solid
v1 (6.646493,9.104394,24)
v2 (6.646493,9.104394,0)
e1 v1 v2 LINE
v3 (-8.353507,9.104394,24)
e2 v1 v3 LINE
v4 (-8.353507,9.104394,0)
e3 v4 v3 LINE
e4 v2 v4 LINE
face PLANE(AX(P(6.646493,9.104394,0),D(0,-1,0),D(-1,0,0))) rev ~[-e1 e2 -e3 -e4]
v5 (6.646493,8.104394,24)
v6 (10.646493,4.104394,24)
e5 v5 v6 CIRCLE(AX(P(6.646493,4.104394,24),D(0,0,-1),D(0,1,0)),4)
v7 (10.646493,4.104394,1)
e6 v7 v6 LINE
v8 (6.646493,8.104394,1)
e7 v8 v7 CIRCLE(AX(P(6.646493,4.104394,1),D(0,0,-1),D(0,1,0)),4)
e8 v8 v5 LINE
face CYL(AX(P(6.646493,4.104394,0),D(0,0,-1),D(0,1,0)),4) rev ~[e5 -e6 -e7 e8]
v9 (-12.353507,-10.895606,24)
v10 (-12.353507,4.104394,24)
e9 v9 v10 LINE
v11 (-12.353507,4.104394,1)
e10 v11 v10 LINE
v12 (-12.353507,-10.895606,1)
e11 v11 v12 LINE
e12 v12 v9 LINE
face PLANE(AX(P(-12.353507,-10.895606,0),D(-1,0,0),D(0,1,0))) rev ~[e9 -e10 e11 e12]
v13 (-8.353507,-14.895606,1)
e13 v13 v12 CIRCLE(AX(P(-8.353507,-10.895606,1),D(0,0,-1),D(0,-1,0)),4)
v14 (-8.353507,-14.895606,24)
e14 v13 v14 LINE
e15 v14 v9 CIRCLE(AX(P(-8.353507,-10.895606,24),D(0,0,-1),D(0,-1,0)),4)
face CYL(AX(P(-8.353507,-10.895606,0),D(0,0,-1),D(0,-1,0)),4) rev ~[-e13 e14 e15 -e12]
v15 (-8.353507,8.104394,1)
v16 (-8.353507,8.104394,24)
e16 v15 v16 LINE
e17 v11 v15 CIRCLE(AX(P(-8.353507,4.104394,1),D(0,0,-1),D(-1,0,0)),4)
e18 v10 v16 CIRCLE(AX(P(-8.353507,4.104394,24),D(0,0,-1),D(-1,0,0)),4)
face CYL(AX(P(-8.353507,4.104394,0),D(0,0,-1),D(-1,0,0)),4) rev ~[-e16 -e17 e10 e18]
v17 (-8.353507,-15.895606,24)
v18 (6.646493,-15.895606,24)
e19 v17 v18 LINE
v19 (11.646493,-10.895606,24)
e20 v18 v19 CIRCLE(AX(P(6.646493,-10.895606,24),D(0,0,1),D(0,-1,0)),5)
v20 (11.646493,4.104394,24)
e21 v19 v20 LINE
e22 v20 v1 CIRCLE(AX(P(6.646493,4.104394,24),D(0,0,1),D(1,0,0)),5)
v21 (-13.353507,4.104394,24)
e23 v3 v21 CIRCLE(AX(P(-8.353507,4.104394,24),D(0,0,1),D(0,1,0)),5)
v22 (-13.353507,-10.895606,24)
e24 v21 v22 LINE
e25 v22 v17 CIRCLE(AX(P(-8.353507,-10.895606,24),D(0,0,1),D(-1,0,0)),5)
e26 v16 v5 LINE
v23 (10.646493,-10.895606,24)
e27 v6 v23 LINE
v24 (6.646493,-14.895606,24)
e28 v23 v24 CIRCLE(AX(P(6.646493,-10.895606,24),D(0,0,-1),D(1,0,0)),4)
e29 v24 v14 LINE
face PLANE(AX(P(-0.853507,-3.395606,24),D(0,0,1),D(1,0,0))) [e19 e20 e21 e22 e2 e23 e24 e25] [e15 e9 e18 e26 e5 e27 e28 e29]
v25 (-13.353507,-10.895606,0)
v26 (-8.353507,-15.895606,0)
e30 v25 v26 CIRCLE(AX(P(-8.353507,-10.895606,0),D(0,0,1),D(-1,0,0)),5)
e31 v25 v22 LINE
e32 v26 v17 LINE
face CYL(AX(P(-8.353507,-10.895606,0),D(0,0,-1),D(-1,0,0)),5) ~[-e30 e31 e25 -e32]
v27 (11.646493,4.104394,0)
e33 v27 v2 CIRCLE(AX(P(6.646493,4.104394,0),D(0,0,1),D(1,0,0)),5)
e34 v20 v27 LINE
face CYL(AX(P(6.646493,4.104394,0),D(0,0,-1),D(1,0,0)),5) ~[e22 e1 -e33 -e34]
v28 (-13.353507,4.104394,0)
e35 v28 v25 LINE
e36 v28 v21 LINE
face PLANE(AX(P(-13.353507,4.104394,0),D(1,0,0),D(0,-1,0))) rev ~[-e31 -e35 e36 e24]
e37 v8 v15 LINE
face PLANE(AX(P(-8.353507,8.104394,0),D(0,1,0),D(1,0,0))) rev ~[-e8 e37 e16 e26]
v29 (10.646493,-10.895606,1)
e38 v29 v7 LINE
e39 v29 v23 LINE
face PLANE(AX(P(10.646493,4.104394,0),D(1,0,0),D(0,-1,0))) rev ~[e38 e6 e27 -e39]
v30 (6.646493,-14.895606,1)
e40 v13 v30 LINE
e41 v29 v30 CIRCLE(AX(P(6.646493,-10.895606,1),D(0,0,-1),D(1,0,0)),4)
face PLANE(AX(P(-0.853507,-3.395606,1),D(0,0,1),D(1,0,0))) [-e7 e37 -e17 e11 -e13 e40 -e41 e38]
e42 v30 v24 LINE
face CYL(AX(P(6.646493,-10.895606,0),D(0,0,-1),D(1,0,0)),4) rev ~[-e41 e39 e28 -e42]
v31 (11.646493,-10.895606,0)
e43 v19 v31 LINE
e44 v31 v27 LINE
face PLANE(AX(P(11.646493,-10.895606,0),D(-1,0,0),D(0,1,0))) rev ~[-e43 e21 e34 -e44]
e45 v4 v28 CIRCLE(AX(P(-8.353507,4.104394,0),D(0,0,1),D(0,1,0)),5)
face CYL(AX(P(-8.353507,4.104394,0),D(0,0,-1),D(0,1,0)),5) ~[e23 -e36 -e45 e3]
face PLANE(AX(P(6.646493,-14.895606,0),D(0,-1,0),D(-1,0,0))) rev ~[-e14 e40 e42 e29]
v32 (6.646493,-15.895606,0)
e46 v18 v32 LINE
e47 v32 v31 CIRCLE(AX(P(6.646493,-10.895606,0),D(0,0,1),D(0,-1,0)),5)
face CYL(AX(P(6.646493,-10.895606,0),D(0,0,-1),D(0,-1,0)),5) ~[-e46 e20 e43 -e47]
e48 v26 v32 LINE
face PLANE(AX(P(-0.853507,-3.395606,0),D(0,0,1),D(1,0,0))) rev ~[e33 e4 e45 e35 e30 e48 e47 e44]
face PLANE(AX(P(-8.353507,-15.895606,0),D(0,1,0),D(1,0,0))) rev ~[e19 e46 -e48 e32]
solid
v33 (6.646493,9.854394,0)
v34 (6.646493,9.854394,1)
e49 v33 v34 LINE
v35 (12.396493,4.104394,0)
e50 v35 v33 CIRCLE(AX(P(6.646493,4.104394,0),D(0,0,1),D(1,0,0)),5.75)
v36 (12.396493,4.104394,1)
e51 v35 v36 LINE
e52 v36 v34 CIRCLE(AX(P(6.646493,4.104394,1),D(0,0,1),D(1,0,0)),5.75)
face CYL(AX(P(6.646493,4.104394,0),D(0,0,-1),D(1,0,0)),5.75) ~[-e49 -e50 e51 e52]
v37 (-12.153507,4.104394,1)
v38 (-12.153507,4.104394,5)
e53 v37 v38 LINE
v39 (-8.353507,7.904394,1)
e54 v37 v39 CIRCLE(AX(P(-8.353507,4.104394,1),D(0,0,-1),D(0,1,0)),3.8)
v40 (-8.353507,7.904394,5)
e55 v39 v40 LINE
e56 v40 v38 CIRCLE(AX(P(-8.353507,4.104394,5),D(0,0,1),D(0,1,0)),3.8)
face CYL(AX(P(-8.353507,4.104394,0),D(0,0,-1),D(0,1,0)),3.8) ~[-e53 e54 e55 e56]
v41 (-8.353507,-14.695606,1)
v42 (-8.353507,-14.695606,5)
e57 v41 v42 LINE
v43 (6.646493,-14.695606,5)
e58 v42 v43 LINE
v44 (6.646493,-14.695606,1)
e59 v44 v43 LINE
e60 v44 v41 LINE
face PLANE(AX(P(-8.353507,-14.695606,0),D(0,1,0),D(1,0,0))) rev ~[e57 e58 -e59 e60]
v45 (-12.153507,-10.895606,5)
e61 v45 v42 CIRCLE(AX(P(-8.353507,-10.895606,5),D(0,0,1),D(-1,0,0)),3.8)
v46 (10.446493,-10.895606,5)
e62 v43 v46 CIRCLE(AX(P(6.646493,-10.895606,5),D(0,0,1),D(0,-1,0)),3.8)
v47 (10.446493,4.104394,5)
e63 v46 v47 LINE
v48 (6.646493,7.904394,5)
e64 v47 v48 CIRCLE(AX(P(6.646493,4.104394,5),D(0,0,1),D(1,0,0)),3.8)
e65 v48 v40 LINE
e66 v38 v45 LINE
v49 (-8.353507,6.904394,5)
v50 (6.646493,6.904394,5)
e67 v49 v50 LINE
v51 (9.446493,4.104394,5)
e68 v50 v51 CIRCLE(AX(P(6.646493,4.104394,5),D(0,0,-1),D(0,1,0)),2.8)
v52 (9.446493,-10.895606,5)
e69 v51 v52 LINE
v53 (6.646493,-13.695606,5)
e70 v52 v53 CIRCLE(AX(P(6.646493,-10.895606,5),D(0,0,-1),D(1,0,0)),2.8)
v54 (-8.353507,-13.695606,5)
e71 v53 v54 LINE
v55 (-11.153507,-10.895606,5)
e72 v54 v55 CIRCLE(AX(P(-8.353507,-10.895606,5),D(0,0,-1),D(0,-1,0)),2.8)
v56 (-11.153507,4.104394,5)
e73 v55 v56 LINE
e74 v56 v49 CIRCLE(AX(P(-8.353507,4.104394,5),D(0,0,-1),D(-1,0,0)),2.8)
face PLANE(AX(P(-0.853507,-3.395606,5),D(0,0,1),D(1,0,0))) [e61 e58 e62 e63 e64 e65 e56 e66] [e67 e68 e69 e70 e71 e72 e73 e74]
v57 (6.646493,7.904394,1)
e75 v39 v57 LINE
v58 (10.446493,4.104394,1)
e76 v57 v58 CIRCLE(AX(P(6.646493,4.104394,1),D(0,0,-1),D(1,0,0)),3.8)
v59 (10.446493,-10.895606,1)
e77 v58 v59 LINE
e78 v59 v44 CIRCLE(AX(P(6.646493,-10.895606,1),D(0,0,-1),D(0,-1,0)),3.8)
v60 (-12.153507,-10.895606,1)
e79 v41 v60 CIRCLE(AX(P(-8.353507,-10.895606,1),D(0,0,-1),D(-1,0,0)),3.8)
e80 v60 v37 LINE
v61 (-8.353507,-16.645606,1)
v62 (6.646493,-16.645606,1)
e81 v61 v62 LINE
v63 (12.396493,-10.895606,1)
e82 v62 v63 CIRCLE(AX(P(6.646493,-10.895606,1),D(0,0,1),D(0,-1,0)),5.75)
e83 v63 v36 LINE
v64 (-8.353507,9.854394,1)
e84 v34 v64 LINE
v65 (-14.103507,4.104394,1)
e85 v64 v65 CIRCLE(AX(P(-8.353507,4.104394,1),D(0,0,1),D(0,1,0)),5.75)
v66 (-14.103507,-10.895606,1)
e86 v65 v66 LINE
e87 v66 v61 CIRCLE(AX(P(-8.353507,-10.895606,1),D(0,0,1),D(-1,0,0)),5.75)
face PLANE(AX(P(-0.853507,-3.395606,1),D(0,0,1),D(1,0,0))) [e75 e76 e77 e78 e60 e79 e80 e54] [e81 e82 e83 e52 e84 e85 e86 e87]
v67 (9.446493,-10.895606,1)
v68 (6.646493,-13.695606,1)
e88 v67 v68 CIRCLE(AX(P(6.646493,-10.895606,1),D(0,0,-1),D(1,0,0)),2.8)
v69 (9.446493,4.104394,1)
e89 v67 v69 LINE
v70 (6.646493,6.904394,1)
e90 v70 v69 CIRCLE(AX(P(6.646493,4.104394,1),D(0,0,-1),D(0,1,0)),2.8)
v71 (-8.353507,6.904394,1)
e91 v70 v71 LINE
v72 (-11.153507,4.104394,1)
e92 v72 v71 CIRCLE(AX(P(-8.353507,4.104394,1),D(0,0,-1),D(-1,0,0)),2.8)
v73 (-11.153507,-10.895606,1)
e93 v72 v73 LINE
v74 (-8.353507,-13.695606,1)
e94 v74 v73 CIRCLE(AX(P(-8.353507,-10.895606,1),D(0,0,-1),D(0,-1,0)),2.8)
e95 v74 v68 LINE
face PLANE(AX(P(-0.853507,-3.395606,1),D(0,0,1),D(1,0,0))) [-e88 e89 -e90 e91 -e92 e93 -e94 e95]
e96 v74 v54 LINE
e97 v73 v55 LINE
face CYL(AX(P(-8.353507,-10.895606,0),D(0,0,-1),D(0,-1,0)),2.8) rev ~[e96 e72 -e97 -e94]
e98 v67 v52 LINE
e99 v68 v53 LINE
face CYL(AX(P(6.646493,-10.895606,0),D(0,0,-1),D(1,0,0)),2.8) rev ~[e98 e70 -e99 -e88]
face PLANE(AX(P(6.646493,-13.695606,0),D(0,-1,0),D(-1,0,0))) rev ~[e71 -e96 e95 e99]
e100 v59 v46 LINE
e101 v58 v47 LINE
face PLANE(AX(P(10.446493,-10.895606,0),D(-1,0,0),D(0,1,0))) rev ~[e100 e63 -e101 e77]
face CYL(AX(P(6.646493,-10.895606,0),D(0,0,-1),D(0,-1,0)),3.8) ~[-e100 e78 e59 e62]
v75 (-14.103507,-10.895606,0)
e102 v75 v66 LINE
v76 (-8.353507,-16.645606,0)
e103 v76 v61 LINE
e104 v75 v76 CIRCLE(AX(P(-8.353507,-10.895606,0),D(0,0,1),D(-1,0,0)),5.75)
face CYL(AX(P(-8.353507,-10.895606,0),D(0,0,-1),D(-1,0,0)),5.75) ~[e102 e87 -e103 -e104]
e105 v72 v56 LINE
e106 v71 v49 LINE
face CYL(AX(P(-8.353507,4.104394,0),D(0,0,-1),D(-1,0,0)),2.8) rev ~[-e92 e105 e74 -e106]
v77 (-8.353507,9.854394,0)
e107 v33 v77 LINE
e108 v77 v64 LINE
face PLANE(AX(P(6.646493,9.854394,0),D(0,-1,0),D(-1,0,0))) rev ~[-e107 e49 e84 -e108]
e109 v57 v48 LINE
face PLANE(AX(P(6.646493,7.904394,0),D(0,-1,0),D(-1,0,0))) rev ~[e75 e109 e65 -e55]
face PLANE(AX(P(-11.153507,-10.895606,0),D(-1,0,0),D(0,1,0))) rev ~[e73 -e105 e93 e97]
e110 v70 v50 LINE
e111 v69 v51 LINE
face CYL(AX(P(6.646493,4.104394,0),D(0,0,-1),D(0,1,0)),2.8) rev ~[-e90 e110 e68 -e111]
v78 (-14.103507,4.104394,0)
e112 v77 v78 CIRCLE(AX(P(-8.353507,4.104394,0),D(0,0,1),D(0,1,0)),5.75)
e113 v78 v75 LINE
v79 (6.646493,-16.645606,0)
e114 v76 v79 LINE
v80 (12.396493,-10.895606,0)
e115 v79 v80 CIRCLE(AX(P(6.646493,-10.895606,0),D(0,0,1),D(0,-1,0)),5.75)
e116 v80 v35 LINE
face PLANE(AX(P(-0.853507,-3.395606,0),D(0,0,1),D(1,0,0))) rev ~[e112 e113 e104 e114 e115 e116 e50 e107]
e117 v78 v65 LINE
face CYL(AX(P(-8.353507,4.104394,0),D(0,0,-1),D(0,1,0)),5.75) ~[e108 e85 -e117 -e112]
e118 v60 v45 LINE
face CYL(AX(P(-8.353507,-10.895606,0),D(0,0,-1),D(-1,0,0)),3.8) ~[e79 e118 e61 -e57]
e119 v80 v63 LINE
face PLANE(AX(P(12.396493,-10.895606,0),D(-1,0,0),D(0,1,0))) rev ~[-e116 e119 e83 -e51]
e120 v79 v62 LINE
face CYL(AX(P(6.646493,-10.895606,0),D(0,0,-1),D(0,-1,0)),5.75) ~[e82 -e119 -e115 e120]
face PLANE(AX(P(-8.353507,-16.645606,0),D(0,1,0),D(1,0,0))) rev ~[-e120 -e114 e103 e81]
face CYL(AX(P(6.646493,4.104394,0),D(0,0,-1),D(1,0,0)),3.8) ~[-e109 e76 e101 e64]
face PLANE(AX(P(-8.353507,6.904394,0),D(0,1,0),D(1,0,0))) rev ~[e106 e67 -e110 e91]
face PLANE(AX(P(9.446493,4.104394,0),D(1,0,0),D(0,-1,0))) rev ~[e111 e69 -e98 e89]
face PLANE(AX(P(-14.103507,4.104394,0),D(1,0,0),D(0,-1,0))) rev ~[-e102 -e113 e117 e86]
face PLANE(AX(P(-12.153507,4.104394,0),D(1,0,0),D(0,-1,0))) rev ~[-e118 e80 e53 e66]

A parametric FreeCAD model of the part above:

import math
import FreeCAD as App
import Part
import Sketcher
from FreeCAD import Vector

doc = App.newDocument("Part")
params = doc.addObject("Spreadsheet::Sheet", "Params")
for row, (alias, value) in enumerate([
    ("sketch1_radius", "5 mm"),
    ("sketch1_width", "15 mm"),
    ("pad1_length", "1 mm"),
    ("sketch2_radius", "5 mm"),
    ("sketch2_radius2", "4 mm"),
    ("sketch2_width", "15 mm"),
    ("pad2_length", "24 mm"),
    ("sketch3_width", "15 mm"),
    ("sketch3_radius", "5.75 mm"),
    ("pad3_length", "1 mm"),
    ("sketch4_radius", "3.8 mm"),
    ("sketch4_radius2", "2.8 mm"),
    ("sketch4_width", "15 mm"),
    ("pad4_length", "5 mm"),
], start=1):
    params.set(f"A{row}", alias)
    params.set(f"B{row}", "=" + value)
    params.setAlias(f"B{row}", alias)

body = doc.addObject("PartDesign::Body", "Body")

sketch1 = doc.addObject("Sketcher::SketchObject", "Sketch")
body.addObject(sketch1)
sketch1.AttachmentSupport = (doc.XY_Plane, [""])
sketch1.MapMode = "FlatFace"
sketch1.addGeometry([
    Part.LineSegment(Vector(7, 9, 0), Vector(-8, 9, 0)),
    Part.ArcOfCircle(Part.Circle(Vector(-8, 4, 0), Vector(0, 0, 1), 5), math.radians(90), math.radians(180)),
    Part.LineSegment(Vector(-13, 4, 0), Vector(-13, -11, 0)),
    Part.ArcOfCircle(Part.Circle(Vector(-8, -11, 0), Vector(0, 0, 1), 5), math.radians(180), math.radians(270)),
    Part.LineSegment(Vector(-8, -16, 0), Vector(7, -16, 0)),
    Part.ArcOfCircle(Part.Circle(Vector(7, -11, 0), Vector(0, 0, 1), 5), math.radians(-90), math.radians(0)),
    Part.LineSegment(Vector(12, -11, 0), Vector(12, 4, 0)),
    Part.ArcOfCircle(Part.Circle(Vector(7, 4, 0), Vector(0, 0, 1), 5), math.radians(0), math.radians(90)),
], False)
sketch1.addConstraint([
    Sketcher.Constraint("Tangent", 0, 2, 1, 1),
    Sketcher.Constraint("Tangent", 1, 2, 2, 1),
    Sketcher.Constraint("Tangent", 2, 2, 3, 1),
    Sketcher.Constraint("Tangent", 3, 2, 4, 1),
    Sketcher.Constraint("Tangent", 4, 2, 5, 1),
    Sketcher.Constraint("Tangent", 5, 2, 6, 1),
    Sketcher.Constraint("Tangent", 6, 2, 7, 1),
    Sketcher.Constraint("Tangent", 7, 2, 0, 1),
    Sketcher.Constraint("Horizontal", 0),
    Sketcher.Constraint("Vertical", 2),
    Sketcher.Constraint("Horizontal", 4),
    Sketcher.Constraint("Vertical", 6),
    Sketcher.Constraint("Equal", 1, 3),
    Sketcher.Constraint("Equal", 3, 5),
    Sketcher.Constraint("Equal", 5, 7),
    Sketcher.Constraint("Equal", 4, 2),
    Sketcher.Constraint("Radius", 1, 5.0),
    Sketcher.Constraint("DistanceX", 0, 2, 0, 1, 15.0),
    Sketcher.Constraint("DistanceX", 1, 3, -1, 1, 8.353507),
    Sketcher.Constraint("DistanceY", -1, 1, 1, 3, 4.104394),
])
sketch1.setExpression("Constraints[16]", "Params.sketch1_radius")
sketch1.setExpression("Constraints[17]", "Params.sketch1_width")
pad1 = doc.addObject("PartDesign::Pad", "Pad")
body.addObject(pad1)
pad1.Profile = sketch1
pad1.setExpression("Length", "Params.pad1_length")

sketch2 = doc.addObject("Sketcher::SketchObject", "Sketch001")
body.addObject(sketch2)
sketch2.AttachmentSupport = (doc.XY_Plane, [""])
sketch2.MapMode = "FlatFace"
sketch2.addGeometry([
    Part.LineSegment(Vector(6.6, 9.1, 0), Vector(-8.4, 9.1, 0)),
    Part.ArcOfCircle(Part.Circle(Vector(-8.4, 4.1, 0), Vector(0, 0, 1), 5), math.radians(90), math.radians(180)),
    Part.LineSegment(Vector(-13.4, 4.1, 0), Vector(-13.4, -10.9, 0)),
    Part.ArcOfCircle(Part.Circle(Vector(-8.4, -10.9, 0), Vector(0, 0, 1), 5), math.radians(180), math.radians(270)),
    Part.LineSegment(Vector(-8.4, -15.9, 0), Vector(6.6, -15.9, 0)),
    Part.ArcOfCircle(Part.Circle(Vector(6.6, -10.9, 0), Vector(0, 0, 1), 5), math.radians(-90), math.radians(0)),
    Part.LineSegment(Vector(11.6, -10.9, 0), Vector(11.6, 4.1, 0)),
    Part.ArcOfCircle(Part.Circle(Vector(6.6, 4.1, 0), Vector(0, 0, 1), 5), math.radians(0), math.radians(90)),
    Part.LineSegment(Vector(-12.4, -10.9, 0), Vector(-12.4, 4.1, 0)),
    Part.ArcOfCircle(Part.Circle(Vector(-8.4, 4.1, 0), Vector(0, 0, 1), 4), math.radians(90), math.radians(180)),
    Part.LineSegment(Vector(-8.4, 8.1, 0), Vector(6.6, 8.1, 0)),
    Part.ArcOfCircle(Part.Circle(Vector(6.6, 4.1, 0), Vector(0, 0, 1), 4), math.radians(0), math.radians(90)),
    Part.LineSegment(Vector(10.6, 4.1, 0), Vector(10.6, -10.9, 0)),
    Part.ArcOfCircle(Part.Circle(Vector(6.6, -10.9, 0), Vector(0, 0, 1), 4), math.radians(-90), math.radians(0)),
    Part.LineSegment(Vector(6.6, -14.9, 0), Vector(-8.4, -14.9, 0)),
    Part.ArcOfCircle(Part.Circle(Vector(-8.4, -10.9, 0), Vector(0, 0, 1), 4), math.radians(180), math.radians(270)),
], False)
sketch2.addConstraint([
    Sketcher.Constraint("Tangent", 0, 2, 1, 1),
    Sketcher.Constraint("Tangent", 1, 2, 2, 1),
    Sketcher.Constraint("Tangent", 2, 2, 3, 1),
    Sketcher.Constraint("Tangent", 3, 2, 4, 1),
    Sketcher.Constraint("Tangent", 4, 2, 5, 1),
    Sketcher.Constraint("Tangent", 5, 2, 6, 1),
    Sketcher.Constraint("Tangent", 6, 2, 7, 1),
    Sketcher.Constraint("Tangent", 7, 2, 0, 1),
    Sketcher.Constraint("Tangent", 8, 2, 9, 2),
    Sketcher.Constraint("Tangent", 9, 1, 10, 1),
    Sketcher.Constraint("Tangent", 10, 2, 11, 2),
    Sketcher.Constraint("Tangent", 11, 1, 12, 1),
    Sketcher.Constraint("Tangent", 12, 2, 13, 2),
    Sketcher.Constraint("Tangent", 13, 1, 14, 1),
    Sketcher.Constraint("Tangent", 14, 2, 15, 2),
    Sketcher.Constraint("Tangent", 15, 1, 8, 1),
    Sketcher.Constraint("Horizontal", 0),
    Sketcher.Constraint("Vertical", 2),
    Sketcher.Constraint("Horizontal", 4),
    Sketcher.Constraint("Vertical", 6),
    Sketcher.Constraint("Vertical", 8),
    Sketcher.Constraint("Horizontal", 10),
    Sketcher.Constraint("Vertical", 12),
    Sketcher.Constraint("Horizontal", 14),
    Sketcher.Constraint("Coincident", 9, 3, 1, 3),
    Sketcher.Constraint("Coincident", 11, 3, 7, 3),
    Sketcher.Constraint("Coincident", 13, 3, 5, 3),
    Sketcher.Constraint("Equal", 1, 3),
    Sketcher.Constraint("Equal", 3, 5),
    Sketcher.Constraint("Equal", 5, 7),
    Sketcher.Constraint("Equal", 13, 15),
    Sketcher.Constraint("Equal", 14, 2),
    Sketcher.Constraint("Radius", 1, 5.0),
    Sketcher.Constraint("Radius", 9, 4.0),
    Sketcher.Constraint("DistanceX", 0, 2, 0, 1, 15.0),
    Sketcher.Constraint("DistanceX", 1, 3, -1, 1, 8.353507),
    Sketcher.Constraint("DistanceY", -1, 1, 1, 3, 4.104394),
])
sketch2.setExpression("Constraints[32]", "Params.sketch2_radius")
sketch2.setExpression("Constraints[33]", "Params.sketch2_radius2")
sketch2.setExpression("Constraints[34]", "Params.sketch2_width")
pad2 = doc.addObject("PartDesign::Pad", "Pad001")
body.addObject(pad2)
pad2.Profile = sketch2
pad2.setExpression("Length", "Params.pad2_length")
body2 = doc.addObject("PartDesign::Body", "Body001")

sketch3 = doc.addObject("Sketcher::SketchObject", "Sketch002")
body2.addObject(sketch3)
sketch3.AttachmentSupport = (doc.getObject("XY_Plane001"), [""])
sketch3.MapMode = "FlatFace"
sketch3.addGeometry([
    Part.LineSegment(Vector(7, 10, 0), Vector(-8, 10, 0)),
    Part.ArcOfCircle(Part.Circle(Vector(-8, 4, 0), Vector(0, 0, 1), 6), math.radians(90), math.radians(180)),
    Part.LineSegment(Vector(-14, 4, 0), Vector(-14, -11, 0)),
    Part.ArcOfCircle(Part.Circle(Vector(-8, -11, 0), Vector(0, 0, 1), 6), math.radians(180), math.radians(270)),
    Part.LineSegment(Vector(-8, -17, 0), Vector(7, -17, 0)),
    Part.ArcOfCircle(Part.Circle(Vector(7, -11, 0), Vector(0, 0, 1), 6), math.radians(-90), math.radians(0)),
    Part.LineSegment(Vector(12, -11, 0), Vector(12, 4, 0)),
    Part.ArcOfCircle(Part.Circle(Vector(7, 4, 0), Vector(0, 0, 1), 6), math.radians(0), math.radians(90)),
], False)
sketch3.addConstraint([
    Sketcher.Constraint("Tangent", 0, 2, 1, 1),
    Sketcher.Constraint("Tangent", 1, 2, 2, 1),
    Sketcher.Constraint("Tangent", 2, 2, 3, 1),
    Sketcher.Constraint("Tangent", 3, 2, 4, 1),
    Sketcher.Constraint("Tangent", 4, 2, 5, 1),
    Sketcher.Constraint("Tangent", 5, 2, 6, 1),
    Sketcher.Constraint("Tangent", 6, 2, 7, 1),
    Sketcher.Constraint("Tangent", 7, 2, 0, 1),
    Sketcher.Constraint("Horizontal", 0),
    Sketcher.Constraint("Vertical", 2),
    Sketcher.Constraint("Horizontal", 4),
    Sketcher.Constraint("Vertical", 6),
    Sketcher.Constraint("Equal", 1, 3),
    Sketcher.Constraint("Equal", 3, 5),
    Sketcher.Constraint("Equal", 5, 7),
    Sketcher.Constraint("Equal", 4, 2),
    Sketcher.Constraint("DistanceX", 0, 2, 0, 1, 15.0),
    Sketcher.Constraint("Radius", 1, 5.75),
    Sketcher.Constraint("DistanceX", 1, 3, -1, 1, 8.353507),
    Sketcher.Constraint("DistanceY", -1, 1, 1, 3, 4.104394),
])
sketch3.setExpression("Constraints[16]", "Params.sketch3_width")
sketch3.setExpression("Constraints[17]", "Params.sketch3_radius")
pad3 = doc.addObject("PartDesign::Pad", "Pad002")
body2.addObject(pad3)
pad3.Profile = sketch3
pad3.setExpression("Length", "Params.pad3_length")

sketch4 = doc.addObject("Sketcher::SketchObject", "Sketch003")
body2.addObject(sketch4)
sketch4.AttachmentSupport = (doc.getObject("XY_Plane001"), [""])
sketch4.MapMode = "FlatFace"
sketch4.addGeometry([
    Part.LineSegment(Vector(6.6, 7.9, 0), Vector(-8.4, 7.9, 0)),
    Part.ArcOfCircle(Part.Circle(Vector(-8.4, 4.1, 0), Vector(0, 0, 1), 3.8), math.radians(90), math.radians(180)),
    Part.LineSegment(Vector(-12.2, 4.1, 0), Vector(-12.2, -10.9, 0)),
    Part.ArcOfCircle(Part.Circle(Vector(-8.4, -10.9, 0), Vector(0, 0, 1), 3.8), math.radians(180), math.radians(270)),
    Part.LineSegment(Vector(-8.4, -14.7, 0), Vector(6.6, -14.7, 0)),
    Part.ArcOfCircle(Part.Circle(Vector(6.6, -10.9, 0), Vector(0, 0, 1), 3.8), math.radians(-90), math.radians(0)),
    Part.LineSegment(Vector(10.4, -10.9, 0), Vector(10.4, 4.1, 0)),
    Part.ArcOfCircle(Part.Circle(Vector(6.6, 4.1, 0), Vector(0, 0, 1), 3.8), math.radians(0), math.radians(90)),
    Part.LineSegment(Vector(-11.2, -10.9, 0), Vector(-11.2, 4.1, 0)),
    Part.ArcOfCircle(Part.Circle(Vector(-8.4, 4.1, 0), Vector(0, 0, 1), 2.8), math.radians(90), math.radians(180)),
    Part.LineSegment(Vector(-8.4, 6.9, 0), Vector(6.6, 6.9, 0)),
    Part.ArcOfCircle(Part.Circle(Vector(6.6, 4.1, 0), Vector(0, 0, 1), 2.8), math.radians(0), math.radians(90)),
    Part.LineSegment(Vector(9.4, 4.1, 0), Vector(9.4, -10.9, 0)),
    Part.ArcOfCircle(Part.Circle(Vector(6.6, -10.9, 0), Vector(0, 0, 1), 2.8), math.radians(-90), math.radians(0)),
    Part.LineSegment(Vector(6.6, -13.7, 0), Vector(-8.4, -13.7, 0)),
    Part.ArcOfCircle(Part.Circle(Vector(-8.4, -10.9, 0), Vector(0, 0, 1), 2.8), math.radians(180), math.radians(270)),
], False)
sketch4.addConstraint([
    Sketcher.Constraint("Tangent", 0, 2, 1, 1),
    Sketcher.Constraint("Tangent", 1, 2, 2, 1),
    Sketcher.Constraint("Tangent", 2, 2, 3, 1),
    Sketcher.Constraint("Tangent", 3, 2, 4, 1),
    Sketcher.Constraint("Tangent", 4, 2, 5, 1),
    Sketcher.Constraint("Tangent", 5, 2, 6, 1),
    Sketcher.Constraint("Tangent", 6, 2, 7, 1),
    Sketcher.Constraint("Tangent", 7, 2, 0, 1),
    Sketcher.Constraint("Tangent", 8, 2, 9, 2),
    Sketcher.Constraint("Tangent", 9, 1, 10, 1),
    Sketcher.Constraint("Tangent", 10, 2, 11, 2),
    Sketcher.Constraint("Tangent", 11, 1, 12, 1),
    Sketcher.Constraint("Tangent", 12, 2, 13, 2),
    Sketcher.Constraint("Tangent", 13, 1, 14, 1),
    Sketcher.Constraint("Tangent", 14, 2, 15, 2),
    Sketcher.Constraint("Tangent", 15, 1, 8, 1),
    Sketcher.Constraint("Horizontal", 0),
    Sketcher.Constraint("Vertical", 2),
    Sketcher.Constraint("Horizontal", 4),
    Sketcher.Constraint("Vertical", 6),
    Sketcher.Constraint("Vertical", 8),
    Sketcher.Constraint("Horizontal", 10),
    Sketcher.Constraint("Vertical", 12),
    Sketcher.Constraint("Horizontal", 14),
    Sketcher.Constraint("Coincident", 9, 3, 1, 3),
    Sketcher.Constraint("Coincident", 11, 3, 7, 3),
    Sketcher.Constraint("Coincident", 13, 3, 5, 3),
    Sketcher.Constraint("Equal", 1, 3),
    Sketcher.Constraint("Equal", 3, 5),
    Sketcher.Constraint("Equal", 5, 7),
    Sketcher.Constraint("Equal", 13, 15),
    Sketcher.Constraint("Equal", 14, 2),
    Sketcher.Constraint("Radius", 1, 3.8),
    Sketcher.Constraint("Radius", 9, 2.8),
    Sketcher.Constraint("DistanceX", 0, 2, 0, 1, 15.0),
    Sketcher.Constraint("DistanceX", 1, 3, -1, 1, 8.353507),
    Sketcher.Constraint("DistanceY", -1, 1, 1, 3, 4.104394),
])
sketch4.setExpression("Constraints[32]", "Params.sketch4_radius")
sketch4.setExpression("Constraints[33]", "Params.sketch4_radius2")
sketch4.setExpression("Constraints[34]", "Params.sketch4_width")
pad4 = doc.addObject("PartDesign::Pad", "Pad003")
body2.addObject(pad4)
pad4.Profile = sketch4
pad4.setExpression("Length", "Params.pad4_length")

doc.recompute()
